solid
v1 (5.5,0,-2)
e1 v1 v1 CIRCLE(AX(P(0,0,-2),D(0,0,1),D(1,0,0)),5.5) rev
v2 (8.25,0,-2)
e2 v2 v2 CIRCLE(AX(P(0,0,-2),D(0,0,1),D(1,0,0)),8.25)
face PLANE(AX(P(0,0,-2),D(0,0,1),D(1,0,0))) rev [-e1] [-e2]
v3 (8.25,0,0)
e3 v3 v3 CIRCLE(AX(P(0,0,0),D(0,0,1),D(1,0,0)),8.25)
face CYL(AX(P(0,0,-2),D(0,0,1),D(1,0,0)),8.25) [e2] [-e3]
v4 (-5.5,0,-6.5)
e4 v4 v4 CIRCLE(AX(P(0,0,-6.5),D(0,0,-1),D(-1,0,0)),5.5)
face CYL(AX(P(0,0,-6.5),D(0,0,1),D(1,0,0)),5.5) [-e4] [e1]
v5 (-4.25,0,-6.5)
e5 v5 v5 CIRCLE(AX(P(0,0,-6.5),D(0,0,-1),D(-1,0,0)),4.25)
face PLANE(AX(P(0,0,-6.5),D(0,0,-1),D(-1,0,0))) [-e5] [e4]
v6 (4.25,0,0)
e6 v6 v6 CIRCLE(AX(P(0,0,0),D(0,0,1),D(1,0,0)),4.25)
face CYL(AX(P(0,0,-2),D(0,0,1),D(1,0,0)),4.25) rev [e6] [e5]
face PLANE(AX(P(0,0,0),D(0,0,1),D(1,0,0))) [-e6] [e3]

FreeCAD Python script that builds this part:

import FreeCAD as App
import Part
import Sketcher

V = App.Vector
Q = App.Units.Quantity

doc = App.newDocument("Part")
body = doc.addObject("PartDesign::Body", "Body")

sketch1 = body.newObject("Sketcher::SketchObject", "Sketch")
sketch1.AttachmentSupport = (doc.getObject("XY_Plane"), [""])
sketch1.MapMode = "FlatFace"
sketch1.addGeometry([
    Part.Circle(V(0, 0, 0), V(0, 0, 1), 8.25),
    Part.Circle(V(0, 0, 0), V(0, 0, 1), 4.25),
], False)
sketch1.addConstraint([
    Sketcher.Constraint("Coincident", 0, 3, -1, 1),
    Sketcher.Constraint("Coincident", 1, 3, -1, 1),
    Sketcher.Constraint("Diameter", 0, Q("16.5 mm")),
    Sketcher.Constraint("Diameter", 1, Q("8.5 mm")),
])
pad1 = body.newObject("PartDesign::Pad", "Pad")
pad1.Profile = sketch1
pad1.Length = 2
pad1.Reversed = True

sketch2 = body.newObject("Sketcher::SketchObject", "Sketch001")
sketch2.AttachmentSupport = (doc.getObject("XY_Plane"), [""])
sketch2.MapMode = "FlatFace"
sketch2.AttachmentOffset = App.Placement(V(0, 0, -2), App.Rotation())
sketch2.addGeometry([
    Part.Circle(V(0, 0, 0), V(0, 0, 1), 5.5),
    Part.Circle(V(0, 0, 0), V(0, 0, 1), 4.25),
], False)
sketch2.addConstraint([
    Sketcher.Constraint("Coincident", 0, 3, -1, 1),
    Sketcher.Constraint("Coincident", 1, 3, -1, 1),
    Sketcher.Constraint("Diameter", 0, Q("11 mm")),
    Sketcher.Constraint("Diameter", 1, Q("8.5 mm")),
])
pad2 = body.newObject("PartDesign::Pad", "Pad001")
pad2.Profile = sketch2
pad2.Length = 4.5
pad2.Reversed = True

doc.recompute()
